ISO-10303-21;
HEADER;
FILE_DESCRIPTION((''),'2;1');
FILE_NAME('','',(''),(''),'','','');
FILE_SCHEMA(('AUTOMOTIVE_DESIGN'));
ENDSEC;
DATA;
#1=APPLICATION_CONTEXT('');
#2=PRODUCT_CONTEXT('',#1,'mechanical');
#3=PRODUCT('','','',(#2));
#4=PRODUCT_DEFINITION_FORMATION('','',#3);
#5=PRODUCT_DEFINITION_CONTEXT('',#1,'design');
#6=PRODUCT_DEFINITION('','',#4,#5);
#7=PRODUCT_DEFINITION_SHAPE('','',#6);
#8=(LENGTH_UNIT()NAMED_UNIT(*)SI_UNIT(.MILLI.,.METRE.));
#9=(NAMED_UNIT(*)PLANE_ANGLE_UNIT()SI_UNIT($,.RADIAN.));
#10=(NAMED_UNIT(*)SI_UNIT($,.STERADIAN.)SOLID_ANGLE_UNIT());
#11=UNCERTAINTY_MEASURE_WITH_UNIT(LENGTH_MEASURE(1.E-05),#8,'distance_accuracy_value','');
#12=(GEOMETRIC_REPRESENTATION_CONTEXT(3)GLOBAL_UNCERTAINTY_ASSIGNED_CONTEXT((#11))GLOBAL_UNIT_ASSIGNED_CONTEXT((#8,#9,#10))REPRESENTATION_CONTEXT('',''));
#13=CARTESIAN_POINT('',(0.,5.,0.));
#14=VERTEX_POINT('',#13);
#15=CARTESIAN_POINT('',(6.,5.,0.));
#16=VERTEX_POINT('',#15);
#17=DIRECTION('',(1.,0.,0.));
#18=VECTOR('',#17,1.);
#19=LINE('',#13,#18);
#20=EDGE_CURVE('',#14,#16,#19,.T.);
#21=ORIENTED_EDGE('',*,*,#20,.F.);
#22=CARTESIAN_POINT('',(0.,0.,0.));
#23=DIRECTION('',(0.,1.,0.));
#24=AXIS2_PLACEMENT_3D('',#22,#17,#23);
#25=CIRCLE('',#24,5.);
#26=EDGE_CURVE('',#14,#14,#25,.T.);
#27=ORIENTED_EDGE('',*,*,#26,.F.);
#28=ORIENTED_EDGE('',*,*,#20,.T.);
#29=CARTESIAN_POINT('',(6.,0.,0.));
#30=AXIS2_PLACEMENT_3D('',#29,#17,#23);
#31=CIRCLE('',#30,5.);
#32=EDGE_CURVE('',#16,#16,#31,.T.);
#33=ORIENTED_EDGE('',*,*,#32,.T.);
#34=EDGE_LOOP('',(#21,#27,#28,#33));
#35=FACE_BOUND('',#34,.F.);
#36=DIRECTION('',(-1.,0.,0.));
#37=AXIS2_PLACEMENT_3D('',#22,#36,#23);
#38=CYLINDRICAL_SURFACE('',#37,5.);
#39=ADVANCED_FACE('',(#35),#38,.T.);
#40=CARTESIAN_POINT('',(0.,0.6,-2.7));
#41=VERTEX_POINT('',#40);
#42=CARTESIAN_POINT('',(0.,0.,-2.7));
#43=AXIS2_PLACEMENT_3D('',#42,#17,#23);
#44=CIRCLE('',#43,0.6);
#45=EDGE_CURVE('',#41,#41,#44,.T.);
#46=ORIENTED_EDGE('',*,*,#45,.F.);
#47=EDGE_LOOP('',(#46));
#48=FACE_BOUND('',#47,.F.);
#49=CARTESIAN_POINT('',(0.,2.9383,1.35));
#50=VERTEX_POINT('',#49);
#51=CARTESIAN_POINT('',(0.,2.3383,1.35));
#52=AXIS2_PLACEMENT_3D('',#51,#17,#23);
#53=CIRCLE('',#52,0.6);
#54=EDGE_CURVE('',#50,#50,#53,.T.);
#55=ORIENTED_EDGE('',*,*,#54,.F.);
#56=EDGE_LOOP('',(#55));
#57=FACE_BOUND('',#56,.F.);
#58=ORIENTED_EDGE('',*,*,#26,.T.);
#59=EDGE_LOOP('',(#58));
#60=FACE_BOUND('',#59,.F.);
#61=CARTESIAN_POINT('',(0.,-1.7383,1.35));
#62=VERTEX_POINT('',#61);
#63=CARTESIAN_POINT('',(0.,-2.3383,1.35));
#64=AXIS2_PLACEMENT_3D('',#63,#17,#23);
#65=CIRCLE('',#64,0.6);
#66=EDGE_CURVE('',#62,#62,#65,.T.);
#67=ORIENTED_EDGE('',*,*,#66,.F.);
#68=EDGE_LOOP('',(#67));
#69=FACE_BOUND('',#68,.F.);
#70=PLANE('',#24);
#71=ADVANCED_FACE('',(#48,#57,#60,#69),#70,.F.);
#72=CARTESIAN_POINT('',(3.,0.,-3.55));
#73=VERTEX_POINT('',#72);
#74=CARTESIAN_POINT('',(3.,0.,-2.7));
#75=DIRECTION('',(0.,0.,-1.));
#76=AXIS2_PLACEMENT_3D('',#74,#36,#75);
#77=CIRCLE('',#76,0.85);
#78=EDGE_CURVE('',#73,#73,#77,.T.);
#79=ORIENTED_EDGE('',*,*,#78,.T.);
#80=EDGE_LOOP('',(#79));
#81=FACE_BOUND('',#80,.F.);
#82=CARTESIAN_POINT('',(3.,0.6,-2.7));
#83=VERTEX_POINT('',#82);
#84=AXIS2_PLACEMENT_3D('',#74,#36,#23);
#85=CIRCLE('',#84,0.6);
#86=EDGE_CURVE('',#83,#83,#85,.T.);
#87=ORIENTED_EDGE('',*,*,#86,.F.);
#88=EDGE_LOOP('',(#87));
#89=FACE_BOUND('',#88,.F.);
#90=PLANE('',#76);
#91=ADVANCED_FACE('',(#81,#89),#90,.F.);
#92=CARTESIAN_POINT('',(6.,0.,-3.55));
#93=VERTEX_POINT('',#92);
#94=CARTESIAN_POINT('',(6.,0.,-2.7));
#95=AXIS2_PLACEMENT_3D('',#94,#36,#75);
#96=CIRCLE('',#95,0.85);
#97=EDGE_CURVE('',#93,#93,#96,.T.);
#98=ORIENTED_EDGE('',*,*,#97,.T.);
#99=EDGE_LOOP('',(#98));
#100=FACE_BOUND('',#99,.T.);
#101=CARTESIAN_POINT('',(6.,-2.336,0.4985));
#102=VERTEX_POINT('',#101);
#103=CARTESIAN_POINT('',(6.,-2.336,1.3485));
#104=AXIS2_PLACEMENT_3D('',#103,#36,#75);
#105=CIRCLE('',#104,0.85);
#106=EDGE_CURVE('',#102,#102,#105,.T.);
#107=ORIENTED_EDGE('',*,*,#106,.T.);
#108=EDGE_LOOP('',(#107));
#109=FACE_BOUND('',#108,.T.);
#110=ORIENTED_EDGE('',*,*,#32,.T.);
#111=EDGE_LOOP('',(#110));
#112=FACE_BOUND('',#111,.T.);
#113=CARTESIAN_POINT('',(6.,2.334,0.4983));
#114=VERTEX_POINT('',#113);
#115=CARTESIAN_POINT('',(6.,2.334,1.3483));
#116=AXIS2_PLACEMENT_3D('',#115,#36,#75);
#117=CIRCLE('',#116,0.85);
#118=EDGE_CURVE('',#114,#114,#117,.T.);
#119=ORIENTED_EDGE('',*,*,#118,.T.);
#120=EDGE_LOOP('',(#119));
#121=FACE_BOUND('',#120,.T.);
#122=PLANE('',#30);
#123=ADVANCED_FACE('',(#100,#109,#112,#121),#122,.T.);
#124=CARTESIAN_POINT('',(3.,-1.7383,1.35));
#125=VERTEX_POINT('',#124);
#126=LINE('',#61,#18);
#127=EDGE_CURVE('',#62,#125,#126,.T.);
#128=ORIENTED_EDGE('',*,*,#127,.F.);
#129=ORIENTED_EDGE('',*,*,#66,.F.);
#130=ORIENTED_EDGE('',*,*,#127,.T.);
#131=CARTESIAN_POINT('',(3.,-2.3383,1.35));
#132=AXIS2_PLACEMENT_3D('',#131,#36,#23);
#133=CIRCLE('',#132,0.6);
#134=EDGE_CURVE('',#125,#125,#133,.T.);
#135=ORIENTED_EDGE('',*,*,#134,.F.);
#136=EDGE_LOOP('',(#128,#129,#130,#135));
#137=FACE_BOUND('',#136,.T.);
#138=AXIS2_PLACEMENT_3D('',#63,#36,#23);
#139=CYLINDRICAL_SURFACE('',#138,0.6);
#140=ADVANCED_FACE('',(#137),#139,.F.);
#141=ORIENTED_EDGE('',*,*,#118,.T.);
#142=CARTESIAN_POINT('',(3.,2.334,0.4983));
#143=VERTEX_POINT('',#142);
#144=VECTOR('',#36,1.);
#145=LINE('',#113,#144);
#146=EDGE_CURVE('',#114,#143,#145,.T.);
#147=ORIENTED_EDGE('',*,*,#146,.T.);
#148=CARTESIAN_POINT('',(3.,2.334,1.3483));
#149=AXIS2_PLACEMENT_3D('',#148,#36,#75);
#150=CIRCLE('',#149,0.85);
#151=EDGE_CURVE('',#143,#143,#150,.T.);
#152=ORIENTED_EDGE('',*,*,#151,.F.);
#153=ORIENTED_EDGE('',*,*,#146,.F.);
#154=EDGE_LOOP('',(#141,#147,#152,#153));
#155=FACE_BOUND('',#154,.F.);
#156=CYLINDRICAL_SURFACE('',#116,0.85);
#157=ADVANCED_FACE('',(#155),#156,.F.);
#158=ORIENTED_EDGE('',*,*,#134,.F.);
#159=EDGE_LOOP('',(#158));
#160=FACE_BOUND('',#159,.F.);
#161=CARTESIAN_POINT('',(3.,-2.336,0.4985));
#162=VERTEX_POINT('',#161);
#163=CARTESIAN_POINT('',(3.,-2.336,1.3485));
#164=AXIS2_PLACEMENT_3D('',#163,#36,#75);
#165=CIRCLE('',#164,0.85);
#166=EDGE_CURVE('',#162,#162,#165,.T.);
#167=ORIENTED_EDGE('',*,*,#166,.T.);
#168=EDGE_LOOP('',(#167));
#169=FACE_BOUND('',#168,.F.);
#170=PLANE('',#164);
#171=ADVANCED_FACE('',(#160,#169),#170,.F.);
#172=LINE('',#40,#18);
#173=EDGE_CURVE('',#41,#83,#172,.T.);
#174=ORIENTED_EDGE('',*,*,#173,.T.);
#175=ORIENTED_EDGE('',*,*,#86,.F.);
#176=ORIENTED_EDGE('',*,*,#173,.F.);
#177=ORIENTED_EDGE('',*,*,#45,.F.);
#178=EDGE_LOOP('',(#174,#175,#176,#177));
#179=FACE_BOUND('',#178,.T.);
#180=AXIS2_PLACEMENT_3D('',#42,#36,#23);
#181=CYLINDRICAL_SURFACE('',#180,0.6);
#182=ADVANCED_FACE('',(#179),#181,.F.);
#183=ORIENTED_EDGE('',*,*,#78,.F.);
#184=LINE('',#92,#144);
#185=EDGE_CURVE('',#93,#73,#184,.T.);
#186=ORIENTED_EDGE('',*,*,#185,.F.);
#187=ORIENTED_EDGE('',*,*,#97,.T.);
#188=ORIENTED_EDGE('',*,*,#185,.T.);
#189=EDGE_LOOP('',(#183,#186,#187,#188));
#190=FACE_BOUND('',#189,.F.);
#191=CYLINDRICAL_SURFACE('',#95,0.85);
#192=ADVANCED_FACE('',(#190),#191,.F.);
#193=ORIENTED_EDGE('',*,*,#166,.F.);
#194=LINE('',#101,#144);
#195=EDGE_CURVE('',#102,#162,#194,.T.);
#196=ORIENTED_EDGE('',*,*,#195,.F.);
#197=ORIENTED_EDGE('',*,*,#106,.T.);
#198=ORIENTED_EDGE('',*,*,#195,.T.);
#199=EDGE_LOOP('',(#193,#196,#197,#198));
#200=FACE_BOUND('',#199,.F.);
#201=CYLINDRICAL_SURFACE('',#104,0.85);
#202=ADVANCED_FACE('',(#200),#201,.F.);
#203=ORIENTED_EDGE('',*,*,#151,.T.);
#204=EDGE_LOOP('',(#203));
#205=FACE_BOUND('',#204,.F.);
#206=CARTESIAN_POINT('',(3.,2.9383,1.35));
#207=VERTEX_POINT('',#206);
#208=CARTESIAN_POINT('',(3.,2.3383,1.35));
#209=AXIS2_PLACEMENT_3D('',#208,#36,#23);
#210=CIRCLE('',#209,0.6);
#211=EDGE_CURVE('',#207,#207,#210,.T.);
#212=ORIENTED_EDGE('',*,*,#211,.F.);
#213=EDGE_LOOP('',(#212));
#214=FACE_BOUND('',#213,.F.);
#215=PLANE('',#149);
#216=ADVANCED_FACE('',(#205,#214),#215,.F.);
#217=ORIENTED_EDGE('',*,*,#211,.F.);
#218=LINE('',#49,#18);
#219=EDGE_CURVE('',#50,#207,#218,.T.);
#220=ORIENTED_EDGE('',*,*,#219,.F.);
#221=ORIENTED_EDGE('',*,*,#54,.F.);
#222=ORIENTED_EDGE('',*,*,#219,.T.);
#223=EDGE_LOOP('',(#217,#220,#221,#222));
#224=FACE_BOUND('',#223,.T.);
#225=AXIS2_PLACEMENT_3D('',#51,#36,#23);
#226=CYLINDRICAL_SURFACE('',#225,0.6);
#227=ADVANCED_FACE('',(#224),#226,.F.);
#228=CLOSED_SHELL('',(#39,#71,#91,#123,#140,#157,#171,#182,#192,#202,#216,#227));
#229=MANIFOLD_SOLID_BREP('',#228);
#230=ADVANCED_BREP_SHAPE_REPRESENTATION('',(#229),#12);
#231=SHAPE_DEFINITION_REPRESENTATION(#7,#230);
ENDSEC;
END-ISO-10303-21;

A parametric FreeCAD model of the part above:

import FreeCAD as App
import Part
import Sketcher
Q = App.Units.Quantity

doc = App.newDocument("Part")
params = doc.addObject("Spreadsheet::Sheet", "Params")
for row, (alias, value) in enumerate([
    ("sketch1_diameter", "10 mm"),
    ("sketch1_diameter2", "1.2 mm"),
    ("pad1_length", "6 mm"),
    ("sketch2_diameter", "1.7 mm"),
    ("hole_diameter", "1.7 mm"),
    ("hole_depth", "3 mm"),
    ("sketch3_diameter", "1.2 mm"),
    ("pocket1_length", "6 mm"),
    ("sketch4_diameter", "1.7 mm"),
    ("hole2_diameter", "1.7 mm"),
    ("hole2_depth", "3 mm"),
    ("sketch5_diameter", "1.7 mm"),
    ("hole3_diameter", "1.7 mm"),
    ("hole3_depth", "3 mm"),
], start=1):
    params.set(f"A{row}", alias)
    params.set(f"B{row}", "=" + value)
    params.setAlias(f"B{row}", alias)

body = doc.addObject("PartDesign::Body", "Body")

sketch1 = doc.addObject("Sketcher::SketchObject", "Sketch")
body.addObject(sketch1)
sketch1.AttachmentSupport = (doc.YZ_Plane, [""])
sketch1.MapMode = "FlatFace"
sketch1.addGeometry([
    Part.Circle(App.Vector(0, 0, 0), App.Vector(0, 0, 1), 5),
    Part.Circle(App.Vector(0, -2.7, 0), App.Vector(0, 0, 1), 0.6),
], False)
sketch1.addConstraint([
    Sketcher.Constraint("Coincident", 0, 3, -1, 1),
    Sketcher.Constraint("PointOnObject", 1, 3, -2),
    Sketcher.Constraint("Diameter", 0, Q("10 mm")),
    Sketcher.Constraint("Diameter", 1, Q("1.2 mm")),
    Sketcher.Constraint("DistanceY", 1, 3, -1, 1, Q("2.7 mm")),
])
sketch1.setExpression("Constraints[2]", "Params.sketch1_diameter")
sketch1.setExpression("Constraints[3]", "Params.sketch1_diameter2")
pad1 = doc.addObject("PartDesign::Pad", "Pad")
body.addObject(pad1)
pad1.Profile = sketch1
pad1.setExpression("Length", "Params.pad1_length")

sketch2 = doc.addObject("Sketcher::SketchObject", "Sketch001")
body.addObject(sketch2)
sketch2.AttachmentSupport = (doc.YZ_Plane, [""])
sketch2.MapMode = "FlatFace"
sketch2.AttachmentOffset = App.Placement(App.Vector(0, 0, 6), App.Rotation())
sketch2.addGeometry(Part.Circle(App.Vector(0, -2.7, 0), App.Vector(0, 0, 1), 0.8), False)
sketch2.addConstraint([
    Sketcher.Constraint("PointOnObject", 0, 3, -2),
    Sketcher.Constraint("Diameter", 0, Q("1.7 mm")),
    Sketcher.Constraint("DistanceY", 0, 3, -1, 1, Q("2.7 mm")),
])
sketch2.setExpression("Constraints[1]", "Params.sketch2_diameter")
doc.recompute()
hole = doc.addObject("PartDesign::Hole", "Hole")
body.addObject(hole)
hole.Profile = sketch2
hole.ThreadType = "None"
hole.setExpression("Diameter", "Params.hole_diameter")
hole.DepthType = "Dimension"
hole.setExpression("Depth", "Params.hole_depth")
hole.DrillPoint = "Flat"

sketch3 = doc.addObject("Sketcher::SketchObject", "Sketch002")
body.addObject(sketch3)
sketch3.AttachmentSupport = (doc.YZ_Plane, [""])
sketch3.MapMode = "FlatFace"
sketch3.addGeometry([
    Part.Circle(App.Vector(-2.3, 1.4, 0), App.Vector(0, 0, 1), 0.6),
    Part.Circle(App.Vector(2.3, 1.4, 0), App.Vector(0, 0, 1), 0.6),
], False)
sketch3.addConstraint([
    Sketcher.Constraint("Equal", 0, 1),
    Sketcher.Constraint("Symmetric", 0, 3, 1, 3, -2),
    Sketcher.Constraint("Diameter", 0, Q("1.2 mm")),
    Sketcher.Constraint("DistanceY", -1, 1, 0, 3, Q("1.35 mm")),
    Sketcher.Constraint("DistanceX", 0, 3, -1, 1, Q("2.3383 mm")),
])
sketch3.setExpression("Constraints[2]", "Params.sketch3_diameter")
pocket1 = doc.addObject("PartDesign::Pocket", "Pocket")
body.addObject(pocket1)
pocket1.Profile = sketch3
pocket1.setExpression("Length", "Params.pocket1_length")
pocket1.Reversed = True

sketch4 = doc.addObject("Sketcher::SketchObject", "Sketch003")
body.addObject(sketch4)
sketch4.AttachmentSupport = (doc.YZ_Plane, [""])
sketch4.MapMode = "FlatFace"
sketch4.AttachmentOffset = App.Placement(App.Vector(0, 0, 6), App.Rotation())
sketch4.addGeometry(Part.Circle(App.Vector(2.3, 1.3, 0), App.Vector(0, 0, 1), 0.8), False)
sketch4.addConstraint([
    Sketcher.Constraint("Diameter", 0, Q("1.7 mm")),
    Sketcher.Constraint("DistanceX", -1, 1, 0, 3, Q("2.334 mm")),
    Sketcher.Constraint("DistanceY", -1, 1, 0, 3, Q("1.3483 mm")),
])
sketch4.setExpression("Constraints[0]", "Params.sketch4_diameter")
doc.recompute()
hole2 = doc.addObject("PartDesign::Hole", "Hole001")
body.addObject(hole2)
hole2.Profile = sketch4
hole2.ThreadType = "None"
hole2.setExpression("Diameter", "Params.hole2_diameter")
hole2.DepthType = "Dimension"
hole2.setExpression("Depth", "Params.hole2_depth")
hole2.DrillPoint = "Flat"

sketch5 = doc.addObject("Sketcher::SketchObject", "Sketch004")
body.addObject(sketch5)
sketch5.AttachmentSupport = (doc.YZ_Plane, [""])
sketch5.MapMode = "FlatFace"
sketch5.AttachmentOffset = App.Placement(App.Vector(0, 0, 6), App.Rotation())
sketch5.addGeometry(Part.Circle(App.Vector(-2.3, 1.3, 0), App.Vector(0, 0, 1), 0.8), False)
sketch5.addConstraint([
    Sketcher.Constraint("Diameter", 0, Q("1.7 mm")),
    Sketcher.Constraint("DistanceX", 0, 3, -1, 1, Q("2.336 mm")),
    Sketcher.Constraint("DistanceY", -1, 1, 0, 3, Q("1.3485 mm")),
])
sketch5.setExpression("Constraints[0]", "Params.sketch5_diameter")
doc.recompute()
hole3 = doc.addObject("PartDesign::Hole", "Hole002")
body.addObject(hole3)
hole3.Profile = sketch5
hole3.ThreadType = "None"
hole3.setExpression("Diameter", "Params.hole3_diameter")
hole3.DepthType = "Dimension"
hole3.setExpression("Depth", "Params.hole3_depth")
hole3.DrillPoint = "Flat"

doc.recompute()
